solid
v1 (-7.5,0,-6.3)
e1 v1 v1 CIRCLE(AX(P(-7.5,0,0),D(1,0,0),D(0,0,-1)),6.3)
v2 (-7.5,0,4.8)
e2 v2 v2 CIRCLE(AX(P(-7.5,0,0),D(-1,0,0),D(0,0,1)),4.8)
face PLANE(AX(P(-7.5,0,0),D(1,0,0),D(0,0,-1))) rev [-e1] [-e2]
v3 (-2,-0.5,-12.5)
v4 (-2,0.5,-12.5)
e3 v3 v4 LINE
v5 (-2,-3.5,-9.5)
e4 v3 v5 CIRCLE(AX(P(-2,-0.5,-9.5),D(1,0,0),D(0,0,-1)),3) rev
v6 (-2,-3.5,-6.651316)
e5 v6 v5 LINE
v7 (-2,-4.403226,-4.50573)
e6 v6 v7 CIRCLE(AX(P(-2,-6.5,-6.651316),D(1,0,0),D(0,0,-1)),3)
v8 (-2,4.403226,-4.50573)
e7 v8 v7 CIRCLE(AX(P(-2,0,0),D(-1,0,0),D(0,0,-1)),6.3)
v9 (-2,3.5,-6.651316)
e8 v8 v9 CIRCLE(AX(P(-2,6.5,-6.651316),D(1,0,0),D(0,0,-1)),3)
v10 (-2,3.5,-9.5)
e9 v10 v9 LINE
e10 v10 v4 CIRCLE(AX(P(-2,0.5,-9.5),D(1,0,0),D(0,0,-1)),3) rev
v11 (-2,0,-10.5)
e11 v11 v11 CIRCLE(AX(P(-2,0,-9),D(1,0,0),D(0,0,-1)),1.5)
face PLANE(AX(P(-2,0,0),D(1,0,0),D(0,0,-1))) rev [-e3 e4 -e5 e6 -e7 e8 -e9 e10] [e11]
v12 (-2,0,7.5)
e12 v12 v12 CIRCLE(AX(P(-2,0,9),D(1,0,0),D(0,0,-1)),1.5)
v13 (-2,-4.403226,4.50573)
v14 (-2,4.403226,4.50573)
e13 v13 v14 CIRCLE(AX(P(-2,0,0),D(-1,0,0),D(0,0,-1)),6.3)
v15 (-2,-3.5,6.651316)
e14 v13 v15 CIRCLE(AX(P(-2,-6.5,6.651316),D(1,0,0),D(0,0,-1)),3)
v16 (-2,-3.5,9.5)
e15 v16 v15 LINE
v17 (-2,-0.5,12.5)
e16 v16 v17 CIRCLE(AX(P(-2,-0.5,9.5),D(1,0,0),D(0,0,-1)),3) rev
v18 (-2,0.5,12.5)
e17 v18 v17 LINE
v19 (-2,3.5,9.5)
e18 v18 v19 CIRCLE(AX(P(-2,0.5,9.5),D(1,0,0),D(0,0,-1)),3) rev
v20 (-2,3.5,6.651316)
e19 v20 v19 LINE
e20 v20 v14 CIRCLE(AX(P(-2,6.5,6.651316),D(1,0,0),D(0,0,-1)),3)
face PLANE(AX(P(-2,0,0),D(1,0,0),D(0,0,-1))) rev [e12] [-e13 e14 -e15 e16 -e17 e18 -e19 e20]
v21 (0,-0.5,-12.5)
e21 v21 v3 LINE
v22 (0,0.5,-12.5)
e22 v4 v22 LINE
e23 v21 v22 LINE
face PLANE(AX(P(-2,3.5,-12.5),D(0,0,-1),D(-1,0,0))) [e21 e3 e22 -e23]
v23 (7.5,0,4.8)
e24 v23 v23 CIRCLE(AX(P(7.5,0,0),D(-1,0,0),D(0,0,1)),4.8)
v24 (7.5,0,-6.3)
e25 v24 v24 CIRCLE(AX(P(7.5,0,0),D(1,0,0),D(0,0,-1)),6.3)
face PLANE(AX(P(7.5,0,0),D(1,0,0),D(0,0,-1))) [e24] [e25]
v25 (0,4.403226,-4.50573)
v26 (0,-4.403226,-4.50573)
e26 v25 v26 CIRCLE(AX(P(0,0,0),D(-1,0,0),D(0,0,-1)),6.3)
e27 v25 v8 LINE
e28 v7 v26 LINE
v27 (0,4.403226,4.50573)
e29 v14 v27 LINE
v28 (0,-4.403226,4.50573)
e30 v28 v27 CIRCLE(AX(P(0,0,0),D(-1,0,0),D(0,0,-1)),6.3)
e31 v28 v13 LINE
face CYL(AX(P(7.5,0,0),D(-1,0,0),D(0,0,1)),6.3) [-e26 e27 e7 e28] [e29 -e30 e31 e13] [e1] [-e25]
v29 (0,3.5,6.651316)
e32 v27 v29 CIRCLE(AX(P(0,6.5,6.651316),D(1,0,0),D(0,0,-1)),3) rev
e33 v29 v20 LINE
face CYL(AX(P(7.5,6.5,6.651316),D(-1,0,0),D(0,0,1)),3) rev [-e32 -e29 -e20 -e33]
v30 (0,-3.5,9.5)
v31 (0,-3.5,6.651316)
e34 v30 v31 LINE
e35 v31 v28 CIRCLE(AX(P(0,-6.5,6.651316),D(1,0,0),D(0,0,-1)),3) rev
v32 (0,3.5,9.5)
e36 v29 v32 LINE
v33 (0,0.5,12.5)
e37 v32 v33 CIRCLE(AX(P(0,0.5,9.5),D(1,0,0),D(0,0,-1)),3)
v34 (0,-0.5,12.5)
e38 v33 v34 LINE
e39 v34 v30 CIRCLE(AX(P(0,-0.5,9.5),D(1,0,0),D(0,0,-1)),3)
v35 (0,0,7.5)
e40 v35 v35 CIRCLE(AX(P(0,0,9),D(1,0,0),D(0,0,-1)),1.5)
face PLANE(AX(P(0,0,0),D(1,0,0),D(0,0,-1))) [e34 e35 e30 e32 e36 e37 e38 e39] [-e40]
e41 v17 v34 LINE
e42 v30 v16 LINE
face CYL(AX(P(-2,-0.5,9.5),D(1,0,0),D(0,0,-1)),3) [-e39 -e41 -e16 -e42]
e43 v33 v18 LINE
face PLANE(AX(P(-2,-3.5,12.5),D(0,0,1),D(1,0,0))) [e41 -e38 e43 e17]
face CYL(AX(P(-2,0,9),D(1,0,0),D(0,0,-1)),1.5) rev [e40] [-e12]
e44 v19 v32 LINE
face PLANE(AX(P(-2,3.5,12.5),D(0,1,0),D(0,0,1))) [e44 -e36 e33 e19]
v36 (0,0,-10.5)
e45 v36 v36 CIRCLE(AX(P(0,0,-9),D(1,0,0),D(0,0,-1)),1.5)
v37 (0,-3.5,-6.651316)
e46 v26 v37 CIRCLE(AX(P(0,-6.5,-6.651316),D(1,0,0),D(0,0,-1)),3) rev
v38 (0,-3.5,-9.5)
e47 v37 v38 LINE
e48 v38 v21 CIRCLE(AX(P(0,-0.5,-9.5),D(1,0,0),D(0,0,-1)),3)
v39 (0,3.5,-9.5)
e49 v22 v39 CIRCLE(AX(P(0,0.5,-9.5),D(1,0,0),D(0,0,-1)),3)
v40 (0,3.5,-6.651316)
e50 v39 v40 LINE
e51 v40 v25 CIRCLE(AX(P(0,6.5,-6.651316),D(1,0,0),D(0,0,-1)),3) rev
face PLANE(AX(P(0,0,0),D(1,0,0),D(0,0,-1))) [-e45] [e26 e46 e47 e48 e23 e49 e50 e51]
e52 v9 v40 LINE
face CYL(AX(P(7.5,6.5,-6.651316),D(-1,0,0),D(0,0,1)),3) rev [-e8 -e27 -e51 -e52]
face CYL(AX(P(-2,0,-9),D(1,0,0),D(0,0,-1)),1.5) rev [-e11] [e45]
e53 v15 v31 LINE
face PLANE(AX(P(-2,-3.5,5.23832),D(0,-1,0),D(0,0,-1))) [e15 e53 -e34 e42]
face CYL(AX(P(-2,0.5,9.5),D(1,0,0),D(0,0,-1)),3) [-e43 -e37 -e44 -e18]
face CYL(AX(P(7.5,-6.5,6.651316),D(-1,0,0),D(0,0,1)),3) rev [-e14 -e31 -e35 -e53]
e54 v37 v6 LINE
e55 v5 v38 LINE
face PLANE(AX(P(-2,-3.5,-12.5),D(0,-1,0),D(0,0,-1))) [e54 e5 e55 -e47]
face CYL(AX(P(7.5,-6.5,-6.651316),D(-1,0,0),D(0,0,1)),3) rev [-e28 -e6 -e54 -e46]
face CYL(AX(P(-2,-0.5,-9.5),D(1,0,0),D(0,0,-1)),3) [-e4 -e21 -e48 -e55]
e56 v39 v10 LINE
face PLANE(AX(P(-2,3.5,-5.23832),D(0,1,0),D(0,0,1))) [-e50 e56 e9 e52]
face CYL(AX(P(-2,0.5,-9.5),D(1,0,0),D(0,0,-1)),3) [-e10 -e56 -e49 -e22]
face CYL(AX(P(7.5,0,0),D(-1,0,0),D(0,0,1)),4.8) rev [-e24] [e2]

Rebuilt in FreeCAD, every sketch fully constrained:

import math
import FreeCAD as App
import Part
import Sketcher
Q = App.Units.Quantity


def edges_at(feature, points):
    """Names of the edges that pass closest to the given points."""
    edges = feature.Shape.Edges
    near = lambda p: min(range(len(edges)), key=lambda i: edges[i].distToShape(Part.Vertex(*p))[0])
    return sorted({f"Edge{near(p) + 1}" for p in points})

doc = App.newDocument("Part")
body = doc.addObject("PartDesign::Body", "Body")

sketch1 = body.newObject("Sketcher::SketchObject", "Sketch")
sketch1.AttachmentSupport = (doc.getObject("YZ_Plane"), [""])
sketch1.MapMode = "FlatFace"
sketch1.addGeometry(Part.Circle(App.Vector(0, 0, 0), App.Vector(0, 0, 1), 6), False)
sketch1.addConstraint(Sketcher.Constraint("Coincident", 0, 3, -1, 1))
sketch1.addConstraint(Sketcher.Constraint("Diameter", 0, Q("12.6 mm")))
pad1 = body.newObject("PartDesign::Pad", "Pad")
pad1.Profile = sketch1
pad1.Length = 15
pad1.Midplane = True

sketch2 = body.newObject("Sketcher::SketchObject", "Sketch001")
sketch2.AttachmentSupport = (doc.getObject("YZ_Plane"), [""])
sketch2.MapMode = "FlatFace"
sketch2.addGeometry(Part.LineSegment(App.Vector(3.5, -12.5, 0), App.Vector(3.5, -5.2, 0)), False)
sketch2.addGeometry(Part.ArcOfCircle(Part.Circle(App.Vector(0, 0, 0), App.Vector(0, 0, 1), 6.3), math.radians(-124), math.radians(-56)), False)
sketch2.addGeometry(Part.LineSegment(App.Vector(-3.5, -5.2, 0), App.Vector(-3.5, -12.5, 0)), False)
sketch2.addGeometry(Part.LineSegment(App.Vector(-3.5, -12.5, 0), App.Vector(3.5, -12.5, 0)), False)
sketch2.addGeometry(Part.Circle(App.Vector(0, -9, 0), App.Vector(0, 0, 1), 1.5), False)
sketch2.addGeometry(Part.LineSegment(App.Vector(-3.5, 12.5, 0), App.Vector(-3.5, 5.2, 0)), False)
sketch2.addGeometry(Part.ArcOfCircle(Part.Circle(App.Vector(0, 0, 0), App.Vector(0, 0, 1), 6.3), math.radians(56), math.radians(124)), False)
sketch2.addGeometry(Part.LineSegment(App.Vector(3.5, 5.2, 0), App.Vector(3.5, 12.5, 0)), False)
sketch2.addGeometry(Part.LineSegment(App.Vector(3.5, 12.5, 0), App.Vector(-3.5, 12.5, 0)), False)
sketch2.addGeometry(Part.Circle(App.Vector(0, 9, 0), App.Vector(0, 0, 1), 1.5), False)
sketch2.addConstraint(Sketcher.Constraint("Coincident", 0, 2, 1, 2))
sketch2.addConstraint(Sketcher.Constraint("Coincident", 1, 1, 2, 1))
sketch2.addConstraint(Sketcher.Constraint("Coincident", 2, 2, 3, 1))
sketch2.addConstraint(Sketcher.Constraint("Coincident", 3, 2, 0, 1))
sketch2.addConstraint(Sketcher.Constraint("Coincident", 5, 2, 6, 2))
sketch2.addConstraint(Sketcher.Constraint("Coincident", 6, 1, 7, 1))
sketch2.addConstraint(Sketcher.Constraint("Coincident", 7, 2, 8, 1))
sketch2.addConstraint(Sketcher.Constraint("Coincident", 8, 2, 5, 1))
sketch2.addConstraint(Sketcher.Constraint("Vertical", 0))
sketch2.addConstraint(Sketcher.Constraint("Vertical", 2))
sketch2.addConstraint(Sketcher.Constraint("Horizontal", 3))
sketch2.addConstraint(Sketcher.Constraint("Vertical", 5))
sketch2.addConstraint(Sketcher.Constraint("Vertical", 7))
sketch2.addConstraint(Sketcher.Constraint("Horizontal", 8))
sketch2.addConstraint(Sketcher.Constraint("Coincident", 1, 3, -1, 1))
sketch2.addConstraint(Sketcher.Constraint("Coincident", 6, 3, -1, 1))
sketch2.addConstraint(Sketcher.Constraint("Equal", 1, 6))
sketch2.addConstraint(Sketcher.Constraint("Equal", 4, 9))
sketch2.addConstraint(Sketcher.Constraint("Symmetric", 4, 3, 9, 3, -1, 1))
sketch2.addConstraint(Sketcher.Constraint("Symmetric", 2, 2, 7, 2, -1, 1))
sketch2.addConstraint(Sketcher.Constraint("PointOnObject", 4, 3, -2))
sketch2.addConstraint(Sketcher.Constraint("Horizontal", 0, 2, 1, 1))
sketch2.addConstraint(Sketcher.Constraint("Horizontal", 5, 2, 6, 1))
sketch2.addConstraint(Sketcher.Constraint("Diameter", 4, Q("3 mm")))
sketch2.addConstraint(Sketcher.Constraint("Radius", 1, Q("6.3 mm")))
sketch2.addConstraint(Sketcher.Constraint("DistanceX", 3, 1, 3, 2, Q("7 mm")))
sketch2.addConstraint(Sketcher.Constraint("DistanceY", 4, 3, -1, 1, Q("9 mm")))
sketch2.addConstraint(Sketcher.Constraint("DistanceY", 2, 2, -1, 1, Q("12.5 mm")))
pad2 = body.newObject("PartDesign::Pad", "Pad001")
pad2.Profile = sketch2
pad2.Length = 2
pad2.Reversed = True
doc.recompute()

fillet = body.newObject("PartDesign::Fillet", "Fillet")
fillet.Base = (pad2, edges_at(pad2, [
    (-1, -3.5, 12.5),
    (-1, 3.5, 12.5),
    (-1, 3.5, 5.238),
    (-1, -3.5, 5.238),
    (-1, -3.5, -5.238),
    (-1, 3.5, -5.238),
    (-1, 3.5, -12.5),
    (-1, -3.5, -12.5),
]))
fillet.Radius = 3

sketch3 = body.newObject("Sketcher::SketchObject", "Sketch002")
sketch3.AttachmentSupport = (doc.getObject("YZ_Plane"), [""])
sketch3.MapMode = "FlatFace"
sketch3.AttachmentOffset = App.Placement(App.Vector(0, 0, -7.5), App.Rotation())
sketch3.addGeometry(Part.Circle(App.Vector(0, 0, 0), App.Vector(0, 0, 1), 4.8), False)
sketch3.addConstraint(Sketcher.Constraint("Coincident", 0, 3, -1, 1))
sketch3.addConstraint(Sketcher.Constraint("Diameter", 0, Q("9.6 mm")))
pocket1 = body.newObject("PartDesign::Pocket", "Pocket")
pocket1.Profile = sketch3
pocket1.Type = "ThroughAll"
pocket1.Reversed = True

doc.recompute()
